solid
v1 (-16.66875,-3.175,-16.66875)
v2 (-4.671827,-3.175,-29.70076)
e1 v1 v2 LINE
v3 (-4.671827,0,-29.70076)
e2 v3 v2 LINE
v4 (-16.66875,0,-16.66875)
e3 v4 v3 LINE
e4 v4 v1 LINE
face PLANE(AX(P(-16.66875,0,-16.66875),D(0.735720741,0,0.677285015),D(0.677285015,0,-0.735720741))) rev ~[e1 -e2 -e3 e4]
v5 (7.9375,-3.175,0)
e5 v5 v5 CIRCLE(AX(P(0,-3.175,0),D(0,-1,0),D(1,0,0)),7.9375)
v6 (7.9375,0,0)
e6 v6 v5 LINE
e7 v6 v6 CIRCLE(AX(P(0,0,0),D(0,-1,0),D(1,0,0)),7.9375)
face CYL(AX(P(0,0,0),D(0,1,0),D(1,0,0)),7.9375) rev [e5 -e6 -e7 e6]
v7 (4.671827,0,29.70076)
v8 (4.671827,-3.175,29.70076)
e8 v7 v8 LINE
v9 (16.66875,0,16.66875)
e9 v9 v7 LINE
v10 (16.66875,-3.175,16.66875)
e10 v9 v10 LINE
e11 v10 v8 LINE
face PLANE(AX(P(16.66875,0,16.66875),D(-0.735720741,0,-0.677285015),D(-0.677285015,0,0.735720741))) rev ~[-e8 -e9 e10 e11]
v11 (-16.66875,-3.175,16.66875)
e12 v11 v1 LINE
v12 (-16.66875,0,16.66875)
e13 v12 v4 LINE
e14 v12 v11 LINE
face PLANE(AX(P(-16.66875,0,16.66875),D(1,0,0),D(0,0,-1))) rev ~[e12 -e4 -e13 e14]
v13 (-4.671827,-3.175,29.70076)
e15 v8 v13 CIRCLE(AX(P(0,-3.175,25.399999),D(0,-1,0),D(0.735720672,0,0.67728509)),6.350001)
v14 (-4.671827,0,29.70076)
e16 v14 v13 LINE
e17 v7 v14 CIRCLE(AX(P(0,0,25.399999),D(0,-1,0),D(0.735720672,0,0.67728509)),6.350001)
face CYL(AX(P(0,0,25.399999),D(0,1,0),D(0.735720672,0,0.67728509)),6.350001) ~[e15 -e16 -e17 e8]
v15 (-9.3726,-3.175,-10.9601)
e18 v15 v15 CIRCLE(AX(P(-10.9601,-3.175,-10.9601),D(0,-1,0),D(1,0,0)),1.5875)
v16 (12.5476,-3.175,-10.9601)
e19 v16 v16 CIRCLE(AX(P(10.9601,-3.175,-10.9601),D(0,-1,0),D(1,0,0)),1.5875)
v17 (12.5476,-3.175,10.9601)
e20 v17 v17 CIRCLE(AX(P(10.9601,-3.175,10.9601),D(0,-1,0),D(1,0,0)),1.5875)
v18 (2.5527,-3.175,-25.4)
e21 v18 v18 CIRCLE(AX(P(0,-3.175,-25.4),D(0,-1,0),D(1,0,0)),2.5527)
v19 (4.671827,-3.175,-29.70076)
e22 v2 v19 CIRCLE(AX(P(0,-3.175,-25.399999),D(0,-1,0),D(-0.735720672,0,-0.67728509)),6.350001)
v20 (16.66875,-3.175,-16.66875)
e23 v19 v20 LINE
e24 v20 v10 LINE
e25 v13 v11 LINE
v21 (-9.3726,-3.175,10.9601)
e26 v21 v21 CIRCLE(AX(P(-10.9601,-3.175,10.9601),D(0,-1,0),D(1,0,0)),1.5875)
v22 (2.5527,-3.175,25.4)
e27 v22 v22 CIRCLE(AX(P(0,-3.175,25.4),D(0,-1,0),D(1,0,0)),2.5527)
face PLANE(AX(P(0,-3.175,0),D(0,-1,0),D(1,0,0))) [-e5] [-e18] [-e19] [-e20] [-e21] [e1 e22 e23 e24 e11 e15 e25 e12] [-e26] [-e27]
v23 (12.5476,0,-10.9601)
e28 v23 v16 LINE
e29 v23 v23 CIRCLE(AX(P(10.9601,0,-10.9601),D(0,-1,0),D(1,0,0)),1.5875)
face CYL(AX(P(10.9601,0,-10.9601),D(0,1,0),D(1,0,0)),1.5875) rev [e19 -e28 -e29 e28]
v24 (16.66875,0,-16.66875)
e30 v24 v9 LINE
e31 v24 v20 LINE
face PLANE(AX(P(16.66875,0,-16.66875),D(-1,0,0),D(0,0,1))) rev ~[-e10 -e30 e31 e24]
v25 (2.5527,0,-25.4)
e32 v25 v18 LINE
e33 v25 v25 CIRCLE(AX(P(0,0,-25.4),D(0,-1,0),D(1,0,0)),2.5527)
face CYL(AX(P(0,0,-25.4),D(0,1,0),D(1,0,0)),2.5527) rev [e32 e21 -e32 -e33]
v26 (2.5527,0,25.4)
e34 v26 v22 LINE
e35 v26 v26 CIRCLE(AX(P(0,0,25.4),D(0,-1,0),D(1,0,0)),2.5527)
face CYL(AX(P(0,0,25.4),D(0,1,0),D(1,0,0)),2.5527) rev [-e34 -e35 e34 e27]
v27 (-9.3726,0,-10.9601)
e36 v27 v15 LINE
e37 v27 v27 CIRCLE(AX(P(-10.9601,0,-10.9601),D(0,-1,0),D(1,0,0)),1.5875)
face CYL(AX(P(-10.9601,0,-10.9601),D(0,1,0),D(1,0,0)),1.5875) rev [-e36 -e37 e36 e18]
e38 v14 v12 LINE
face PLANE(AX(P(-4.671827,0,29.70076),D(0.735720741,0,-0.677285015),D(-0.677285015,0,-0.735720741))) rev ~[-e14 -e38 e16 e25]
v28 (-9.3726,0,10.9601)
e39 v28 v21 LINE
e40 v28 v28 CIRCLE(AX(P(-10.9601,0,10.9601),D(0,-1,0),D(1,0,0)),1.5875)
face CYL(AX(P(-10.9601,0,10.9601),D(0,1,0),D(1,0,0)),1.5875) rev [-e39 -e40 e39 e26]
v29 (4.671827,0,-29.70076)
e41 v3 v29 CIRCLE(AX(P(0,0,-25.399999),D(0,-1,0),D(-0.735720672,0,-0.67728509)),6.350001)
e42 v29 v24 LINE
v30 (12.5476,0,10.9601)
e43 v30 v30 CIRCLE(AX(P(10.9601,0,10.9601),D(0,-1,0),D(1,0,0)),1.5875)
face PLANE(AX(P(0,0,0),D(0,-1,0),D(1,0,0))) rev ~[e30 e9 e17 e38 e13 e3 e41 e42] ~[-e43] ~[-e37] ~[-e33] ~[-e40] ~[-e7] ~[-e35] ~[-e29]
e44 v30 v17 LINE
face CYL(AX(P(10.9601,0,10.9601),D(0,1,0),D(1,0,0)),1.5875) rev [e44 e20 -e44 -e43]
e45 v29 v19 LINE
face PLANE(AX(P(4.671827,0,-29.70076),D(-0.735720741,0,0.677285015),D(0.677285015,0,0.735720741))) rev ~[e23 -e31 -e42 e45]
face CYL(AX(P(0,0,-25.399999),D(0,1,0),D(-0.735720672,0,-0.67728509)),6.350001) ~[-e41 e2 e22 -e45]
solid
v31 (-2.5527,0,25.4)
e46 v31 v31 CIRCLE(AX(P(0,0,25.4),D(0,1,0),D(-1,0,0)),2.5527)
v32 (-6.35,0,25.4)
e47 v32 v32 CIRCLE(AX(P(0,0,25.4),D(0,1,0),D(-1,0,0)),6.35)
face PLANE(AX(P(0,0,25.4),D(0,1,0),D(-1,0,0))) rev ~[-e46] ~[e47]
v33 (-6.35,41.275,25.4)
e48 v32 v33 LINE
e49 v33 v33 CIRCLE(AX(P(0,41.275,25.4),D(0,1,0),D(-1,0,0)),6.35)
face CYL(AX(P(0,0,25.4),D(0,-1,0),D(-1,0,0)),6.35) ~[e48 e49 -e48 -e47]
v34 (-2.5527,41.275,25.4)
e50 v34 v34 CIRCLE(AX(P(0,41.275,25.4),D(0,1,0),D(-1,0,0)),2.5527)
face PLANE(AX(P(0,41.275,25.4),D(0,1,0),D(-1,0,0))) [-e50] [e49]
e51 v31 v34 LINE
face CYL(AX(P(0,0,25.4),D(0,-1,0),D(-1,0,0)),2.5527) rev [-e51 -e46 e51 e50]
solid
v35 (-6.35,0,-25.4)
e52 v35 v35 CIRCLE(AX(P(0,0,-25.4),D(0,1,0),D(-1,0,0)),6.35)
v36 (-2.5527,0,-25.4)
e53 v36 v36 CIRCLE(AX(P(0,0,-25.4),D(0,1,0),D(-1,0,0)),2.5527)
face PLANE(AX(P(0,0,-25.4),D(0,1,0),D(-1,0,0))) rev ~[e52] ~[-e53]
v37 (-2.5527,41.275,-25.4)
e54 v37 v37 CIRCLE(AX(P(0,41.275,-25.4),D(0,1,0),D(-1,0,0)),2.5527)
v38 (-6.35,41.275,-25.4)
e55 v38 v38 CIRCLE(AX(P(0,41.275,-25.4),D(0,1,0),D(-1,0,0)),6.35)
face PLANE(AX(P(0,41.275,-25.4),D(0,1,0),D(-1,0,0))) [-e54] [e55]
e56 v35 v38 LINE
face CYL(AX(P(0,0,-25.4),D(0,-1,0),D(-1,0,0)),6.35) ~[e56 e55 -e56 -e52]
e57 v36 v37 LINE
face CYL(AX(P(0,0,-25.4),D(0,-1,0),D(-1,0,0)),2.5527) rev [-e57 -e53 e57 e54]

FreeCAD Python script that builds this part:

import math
import FreeCAD as App
import Part
import Sketcher
from FreeCAD import Vector
Q = App.Units.Quantity

doc = App.newDocument("Part")
body = doc.addObject("PartDesign::Body", "Body")

sketch1 = body.newObject("Sketcher::SketchObject", "Sketch")
sketch1.AttachmentSupport = (doc.getObject("XZ_Plane"), [""])
sketch1.MapMode = "FlatFace"
sketch1.addGeometry(Part.ArcOfCircle(Part.Circle(Vector(0, 25.4, 0), Vector(0, 0, 1), 6.4), math.radians(43), math.radians(137)), False)
sketch1.addGeometry(Part.LineSegment(Vector(-4.7, 29.7, 0), Vector(-16.7, 16.7, 0)), False)
sketch1.addGeometry(Part.LineSegment(Vector(-16.7, 16.7, 0), Vector(-16.7, -16.7, 0)), False)
sketch1.addGeometry(Part.LineSegment(Vector(-16.7, -16.7, 0), Vector(-4.7, -29.7, 0)), False)
sketch1.addGeometry(Part.ArcOfCircle(Part.Circle(Vector(0, -25.4, 0), Vector(0, 0, 1), 6.4), math.radians(-137), math.radians(-43)), False)
sketch1.addGeometry(Part.LineSegment(Vector(4.7, -29.7, 0), Vector(16.7, -16.7, 0)), False)
sketch1.addGeometry(Part.LineSegment(Vector(16.7, -16.7, 0), Vector(16.7, 16.7, 0)), False)
sketch1.addGeometry(Part.LineSegment(Vector(16.7, 16.7, 0), Vector(4.7, 29.7, 0)), False)
sketch1.addGeometry(Part.Circle(Vector(-11, -11, 0), Vector(0, 0, 1), 1.6), False)
sketch1.addGeometry(Part.Circle(Vector(0, -25.4, 0), Vector(0, 0, 1), 2.6), False)
sketch1.addGeometry(Part.Circle(Vector(11, -11, 0), Vector(0, 0, 1), 1.6), False)
sketch1.addGeometry(Part.Circle(Vector(-11, 11, 0), Vector(0, 0, 1), 1.6), False)
sketch1.addGeometry(Part.Circle(Vector(0, 0, 0), Vector(0, 0, 1), 7.9), False)
sketch1.addGeometry(Part.Circle(Vector(11, 11, 0), Vector(0, 0, 1), 1.6), False)
sketch1.addGeometry(Part.Circle(Vector(0, 25.4, 0), Vector(0, 0, 1), 2.6), False)
sketch1.addConstraint(Sketcher.Constraint("Tangent", 0, 2, 1, 1))
sketch1.addConstraint(Sketcher.Constraint("Coincident", 1, 2, 2, 1))
sketch1.addConstraint(Sketcher.Constraint("Coincident", 2, 2, 3, 1))
sketch1.addConstraint(Sketcher.Constraint("Tangent", 3, 2, 4, 1))
sketch1.addConstraint(Sketcher.Constraint("Tangent", 4, 2, 5, 1))
sketch1.addConstraint(Sketcher.Constraint("Coincident", 5, 2, 6, 1))
sketch1.addConstraint(Sketcher.Constraint("Coincident", 6, 2, 7, 1))
sketch1.addConstraint(Sketcher.Constraint("Tangent", 7, 2, 0, 1))
sketch1.addConstraint(Sketcher.Constraint("Vertical", 2))
sketch1.addConstraint(Sketcher.Constraint("Vertical", 6))
sketch1.addConstraint(Sketcher.Constraint("Coincident", 12, 3, -1, 1))
sketch1.addConstraint(Sketcher.Constraint("Coincident", 9, 3, 4, 3))
sketch1.addConstraint(Sketcher.Constraint("Coincident", 14, 3, 0, 3))
sketch1.addConstraint(Sketcher.Constraint("Equal", 0, 4))
sketch1.addConstraint(Sketcher.Constraint("Equal", 8, 10))
sketch1.addConstraint(Sketcher.Constraint("Equal", 10, 11))
sketch1.addConstraint(Sketcher.Constraint("Equal", 11, 13))
sketch1.addConstraint(Sketcher.Constraint("Equal", 9, 14))
sketch1.addConstraint(Sketcher.Constraint("Symmetric", 0, 3, 4, 3, -1, 1))
sketch1.addConstraint(Sketcher.Constraint("Symmetric", 10, 3, 11, 3, -1, 1))
sketch1.addConstraint(Sketcher.Constraint("Symmetric", 8, 3, 13, 3, -1, 1))
sketch1.addConstraint(Sketcher.Constraint("Symmetric", 1, 2, 5, 2, -1, 1))
sketch1.addConstraint(Sketcher.Constraint("Symmetric", 8, 3, 10, 3, -2))
sketch1.addConstraint(Sketcher.Constraint("Symmetric", 3, 2, 4, 2, -2))
sketch1.addConstraint(Sketcher.Constraint("Parallel", 3, 7))
sketch1.addConstraint(Sketcher.Constraint("Radius", 0, Q("0.25 in")))
sketch1.addConstraint(Sketcher.Constraint("Diameter", 8, Q("0.125 in")))
sketch1.addConstraint(Sketcher.Constraint("Diameter", 9, Q("0.201 in")))
sketch1.addConstraint(Sketcher.Constraint("Diameter", 12, Q("0.625 in")))
sketch1.addConstraint(Sketcher.Constraint("DistanceY", -1, 1, 0, 3, Q("1 in")))
sketch1.addConstraint(Sketcher.Constraint("DistanceY", 2, 2, 2, 1, Q("1.3125 in")))
sketch1.addConstraint(Sketcher.Constraint("DistanceX", 1, 2, -1, 1, Q("0.65625 in")))
sketch1.addConstraint(Sketcher.Constraint("DistanceX", 8, 3, 10, 3, Q("0.863 in")))
sketch1.addConstraint(Sketcher.Constraint("DistanceY", 8, 3, 11, 3, Q("0.863 in")))
pad1 = body.newObject("PartDesign::Pad", "Pad")
pad1.Profile = sketch1
pad1.Length = Q("0.125 in")
body2 = doc.addObject("PartDesign::Body", "Body001")
body2.AllowCompound = True

sketch2 = body2.newObject("Sketcher::SketchObject", "Sketch001")
sketch2.AttachmentSupport = (doc.getObject("XZ_Plane001"), [""])
sketch2.MapMode = "FlatFace"
sketch2.addGeometry(Part.Circle(Vector(0, 25.4, 0), Vector(0, 0, 1), 6.3), False)
sketch2.addGeometry(Part.Circle(Vector(0, 25.4, 0), Vector(0, 0, 1), 2.6), False)
sketch2.addGeometry(Part.Circle(Vector(0, -25.4, 0), Vector(0, 0, 1), 6.3), False)
sketch2.addGeometry(Part.Circle(Vector(0, -25.4, 0), Vector(0, 0, 1), 2.6), False)
sketch2.addConstraint(Sketcher.Constraint("Coincident", 1, 3, 0, 3))
sketch2.addConstraint(Sketcher.Constraint("Coincident", 3, 3, 2, 3))
sketch2.addConstraint(Sketcher.Constraint("Equal", 0, 2))
sketch2.addConstraint(Sketcher.Constraint("Equal", 1, 3))
sketch2.addConstraint(Sketcher.Constraint("Symmetric", 0, 3, 2, 3, -1, 1))
sketch2.addConstraint(Sketcher.Constraint("PointOnObject", 0, 3, -2))
sketch2.addConstraint(Sketcher.Constraint("Diameter", 0, Q("0.5 in")))
sketch2.addConstraint(Sketcher.Constraint("Diameter", 1, Q("0.201 in")))
sketch2.addConstraint(Sketcher.Constraint("DistanceY", -1, 1, 0, 3, Q("1 in")))
pad2 = body2.newObject("PartDesign::Pad", "Pad001")
pad2.Profile = sketch2
pad2.Length = Q("1.625 in")
pad2.Reversed = True

doc.recompute()
